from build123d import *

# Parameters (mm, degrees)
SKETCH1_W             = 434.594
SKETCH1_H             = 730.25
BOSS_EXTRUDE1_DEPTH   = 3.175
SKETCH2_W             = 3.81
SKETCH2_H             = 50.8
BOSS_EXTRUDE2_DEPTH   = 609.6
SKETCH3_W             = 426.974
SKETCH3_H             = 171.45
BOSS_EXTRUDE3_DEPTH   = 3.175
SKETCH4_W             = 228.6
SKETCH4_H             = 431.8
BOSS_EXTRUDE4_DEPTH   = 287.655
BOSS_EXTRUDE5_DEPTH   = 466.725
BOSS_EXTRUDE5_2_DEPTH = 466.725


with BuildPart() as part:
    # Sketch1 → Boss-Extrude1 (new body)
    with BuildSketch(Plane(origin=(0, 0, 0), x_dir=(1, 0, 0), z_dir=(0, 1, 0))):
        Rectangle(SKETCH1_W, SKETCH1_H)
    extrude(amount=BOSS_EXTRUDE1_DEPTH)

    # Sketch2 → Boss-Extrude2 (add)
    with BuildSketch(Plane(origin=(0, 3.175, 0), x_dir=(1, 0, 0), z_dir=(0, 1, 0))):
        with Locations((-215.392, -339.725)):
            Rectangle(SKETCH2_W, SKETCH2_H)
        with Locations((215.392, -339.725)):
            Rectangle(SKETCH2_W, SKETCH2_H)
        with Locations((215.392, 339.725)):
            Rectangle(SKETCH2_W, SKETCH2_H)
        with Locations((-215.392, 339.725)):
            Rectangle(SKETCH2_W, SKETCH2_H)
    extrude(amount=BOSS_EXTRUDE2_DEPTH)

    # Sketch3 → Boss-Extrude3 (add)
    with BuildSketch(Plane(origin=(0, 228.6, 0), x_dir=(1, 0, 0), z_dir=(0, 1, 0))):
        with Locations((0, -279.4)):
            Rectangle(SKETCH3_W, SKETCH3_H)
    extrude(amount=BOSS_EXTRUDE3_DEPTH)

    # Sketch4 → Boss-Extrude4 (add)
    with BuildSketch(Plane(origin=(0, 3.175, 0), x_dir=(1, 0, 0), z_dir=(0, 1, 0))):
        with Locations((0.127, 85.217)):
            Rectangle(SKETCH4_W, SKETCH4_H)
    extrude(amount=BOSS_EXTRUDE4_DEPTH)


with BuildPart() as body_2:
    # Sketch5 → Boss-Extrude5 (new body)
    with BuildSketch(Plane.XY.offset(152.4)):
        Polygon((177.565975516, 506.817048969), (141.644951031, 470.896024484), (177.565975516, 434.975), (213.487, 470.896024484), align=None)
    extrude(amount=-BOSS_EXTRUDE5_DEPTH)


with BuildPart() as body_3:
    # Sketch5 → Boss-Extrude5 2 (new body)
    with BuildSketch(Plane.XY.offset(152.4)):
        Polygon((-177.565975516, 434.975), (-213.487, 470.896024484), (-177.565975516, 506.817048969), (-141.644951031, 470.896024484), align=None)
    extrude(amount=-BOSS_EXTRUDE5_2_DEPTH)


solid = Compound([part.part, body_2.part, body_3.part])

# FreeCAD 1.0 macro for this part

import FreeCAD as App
import Part
import Sketcher
from FreeCAD import Vector
Q = App.Units.Quantity


def add_polygon(sketch, points):
    """Adds a closed chain of lines whose ends are joined by coincident constraints."""
    first, n = sketch.GeometryCount, len(points)
    for a, b in zip(points, points[1:] + points[:1]):
        sketch.addGeometry(Part.LineSegment(App.Vector(*a, 0), App.Vector(*b, 0)), False)
    for i in range(n):
        sketch.addConstraint(Sketcher.Constraint("Coincident", first + i, 2, first + (i + 1) % n, 1))

doc = App.newDocument("Part")
body = doc.addObject("PartDesign::Body", "Body")

# Sketch on XZ plane
sketch1 = body.newObject("Sketcher::SketchObject", "Sketch")
sketch1.AttachmentSupport = (doc.getObject("XZ_Plane"), [""])
sketch1.MapMode = "FlatFace"
add_polygon(sketch1, [(-217.297, -365.125), (-217.297, 365.125), (217.297, 365.125), (217.297, -365.125)])  # lines 0-3
sketch1.addConstraint(Sketcher.Constraint("Vertical", 0))
sketch1.addConstraint(Sketcher.Constraint("Horizontal", 1))
sketch1.addConstraint(Sketcher.Constraint("Vertical", 2))
sketch1.addConstraint(Sketcher.Constraint("Horizontal", 3))
sketch1.addConstraint(Sketcher.Constraint("Symmetric", 0, 2, 2, 2, -1, 1))
sketch1.addConstraint(Sketcher.Constraint("DistanceX", 1, 1, 1, 2, Q("17.11 in")))
sketch1.addConstraint(Sketcher.Constraint("DistanceY", 0, 1, 0, 2, Q("28.75 in")))
pad1 = body.newObject("PartDesign::Pad", "Pad")
pad1.Profile = sketch1
pad1.Length = Q("0.125 in")
pad1.Reversed = True

# Sketch on XZ plane
sketch2 = body.newObject("Sketcher::SketchObject", "Sketch001")
sketch2.AttachmentSupport = (doc.getObject("XZ_Plane"), [""])
sketch2.MapMode = "FlatFace"
sketch2.AttachmentOffset = App.Placement(Vector(0, 0, -0.125 * 25.4), App.Rotation())
add_polygon(sketch2, [(-217.297, 314.325), (-217.297, 365.125), (-213.487, 365.125), (-213.487, 314.325)])  # lines 0-3
add_polygon(sketch2, [(213.487, 314.325), (213.487, 365.125), (217.297, 365.125), (217.297, 314.325)])  # lines 4-7
add_polygon(sketch2, [(213.487, -365.125), (213.487, -314.325), (217.297, -314.325), (217.297, -365.125)])  # lines 8-11
add_polygon(sketch2, [(-217.297, -365.125), (-217.297, -314.325), (-213.487, -314.325), (-213.487, -365.125)])  # lines 12-15
sketch2.addConstraint(Sketcher.Constraint("Vertical", 0))
sketch2.addConstraint(Sketcher.Constraint("Horizontal", 1))
sketch2.addConstraint(Sketcher.Constraint("Vertical", 2))
sketch2.addConstraint(Sketcher.Constraint("Horizontal", 3))
sketch2.addConstraint(Sketcher.Constraint("Vertical", 4))
sketch2.addConstraint(Sketcher.Constraint("Horizontal", 5))
sketch2.addConstraint(Sketcher.Constraint("Vertical", 6))
sketch2.addConstraint(Sketcher.Constraint("Horizontal", 7))
sketch2.addConstraint(Sketcher.Constraint("Vertical", 8))
sketch2.addConstraint(Sketcher.Constraint("Horizontal", 9))
sketch2.addConstraint(Sketcher.Constraint("Vertical", 10))
sketch2.addConstraint(Sketcher.Constraint("Horizontal", 11))
sketch2.addConstraint(Sketcher.Constraint("Vertical", 12))
sketch2.addConstraint(Sketcher.Constraint("Horizontal", 13))
sketch2.addConstraint(Sketcher.Constraint("Vertical", 14))
sketch2.addConstraint(Sketcher.Constraint("Horizontal", 15))
sketch2.addConstraint(Sketcher.Constraint("Symmetric", 2, 2, 8, 2, -1, 1))
sketch2.addConstraint(Sketcher.Constraint("Symmetric", 0, 2, 10, 2, -1, 1))
sketch2.addConstraint(Sketcher.Constraint("Symmetric", 6, 2, 12, 2, -1, 1))
sketch2.addConstraint(Sketcher.Constraint("Symmetric", 4, 2, 14, 2, -1, 1))
sketch2.addConstraint(Sketcher.Constraint("Symmetric", 1, 2, 4, 2, -2))
sketch2.addConstraint(Sketcher.Constraint("Symmetric", 3, 2, 6, 2, -2))
sketch2.addConstraint(Sketcher.Constraint("DistanceY", 0, 1, 0, 2, Q("2 in")))
sketch2.addConstraint(Sketcher.Constraint("DistanceX", 1, 1, 1, 2, Q("0.15 in")))
sketch2.addConstraint(Sketcher.Constraint("DistanceX", 1, 2, 4, 2, Q("16.81 in")))
sketch2.addConstraint(Sketcher.Constraint("DistanceY", 8, 2, 7, 2, Q("24.75 in")))
pad2 = body.newObject("PartDesign::Pad", "Pad001")
pad2.Profile = sketch2
pad2.Length = Q("24 in")
pad2.Reversed = True

# Sketch on XZ plane
sketch3 = body.newObject("Sketcher::SketchObject", "Sketch002")
sketch3.AttachmentSupport = (doc.getObject("XZ_Plane"), [""])
sketch3.MapMode = "FlatFace"
sketch3.AttachmentOffset = App.Placement(Vector(0, 0, -9 * 25.4), App.Rotation())
add_polygon(sketch3, [(-213.487, 193.675), (-213.487, 365.125), (213.487, 365.125), (213.487, 193.675)])  # lines 0-3
sketch3.addConstraint(Sketcher.Constraint("Vertical", 0))
sketch3.addConstraint(Sketcher.Constraint("Horizontal", 1))
sketch3.addConstraint(Sketcher.Constraint("Vertical", 2))
sketch3.addConstraint(Sketcher.Constraint("Horizontal", 3))
sketch3.addConstraint(Sketcher.Constraint("DistanceX", 1, 1, 1, 2, Q("16.81 in")))
sketch3.addConstraint(Sketcher.Constraint("DistanceY", 0, 1, 0, 2, Q("6.75 in")))
sketch3.addConstraint(Sketcher.Constraint("DistanceX", 0, 2, -1, 1, Q("8.405 in")))
sketch3.addConstraint(Sketcher.Constraint("DistanceY", -1, 1, 0, 2, Q("14.375 in")))
pad3 = body.newObject("PartDesign::Pad", "Pad002")
pad3.Profile = sketch3
pad3.Length = Q("0.125 in")
pad3.Reversed = True

# Sketch on XZ plane
sketch4 = body.newObject("Sketcher::SketchObject", "Sketch003")
sketch4.AttachmentSupport = (doc.getObject("XZ_Plane"), [""])
sketch4.MapMode = "FlatFace"
sketch4.AttachmentOffset = App.Placement(Vector(0, 0, -0.125 * 25.4), App.Rotation())
add_polygon(sketch4, [(-114.173, -301.117), (-114.173, 130.683), (114.427, 130.683), (114.427, -301.117)])  # lines 0-3
sketch4.addConstraint(Sketcher.Constraint("Vertical", 0))
sketch4.addConstraint(Sketcher.Constraint("Horizontal", 1))
sketch4.addConstraint(Sketcher.Constraint("Vertical", 2))
sketch4.addConstraint(Sketcher.Constraint("Horizontal", 3))
sketch4.addConstraint(Sketcher.Constraint("DistanceX", 1, 1, 1, 2, Q("9 in")))
sketch4.addConstraint(Sketcher.Constraint("DistanceY", 0, 1, 0, 2, Q("17 in")))
sketch4.addConstraint(Sketcher.Constraint("DistanceX", 0, 2, -1, 1, Q("4.495 in")))
sketch4.addConstraint(Sketcher.Constraint("DistanceY", -1, 1, 0, 2, Q("5.145 in")))
pad4 = body.newObject("PartDesign::Pad", "Pad003")
pad4.Profile = sketch4
pad4.Length = Q("11.325 in")
pad4.Reversed = True
body2 = doc.addObject("PartDesign::Body", "Body001")

# Sketch on XY plane
sketch5 = body2.newObject("Sketcher::SketchObject", "Sketch004")
sketch5.AttachmentSupport = (doc.getObject("XY_Plane001"), [""])
sketch5.MapMode = "FlatFace"
sketch5.AttachmentOffset = App.Placement(Vector(0, 0, 6 * 25.4), App.Rotation())
add_polygon(sketch5, [(177.565976, 506.817049), (141.644951, 470.896024), (177.565976, 434.975), (213.487, 470.896024)])  # lines 0-3
sketch5.addConstraint(Sketcher.Constraint("Perpendicular", 0, 1))
sketch5.addConstraint(Sketcher.Constraint("Perpendicular", 1, 2))
sketch5.addConstraint(Sketcher.Constraint("Perpendicular", 2, 3))
sketch5.addConstraint(Sketcher.Constraint("Horizontal", 0, 2, 2, 2))
sketch5.addConstraint(Sketcher.Constraint("Vertical", 1, 2, 3, 2))
sketch5.addConstraint(Sketcher.Constraint("Distance", 0, Q("2 in")))
sketch5.addConstraint(Sketcher.Constraint("DistanceY", -1, 1, 1, 2, Q("17.125 in")))
sketch5.addConstraint(Sketcher.Constraint("DistanceX", -1, 1, 2, 2, Q("8.405 in")))
pad5 = body2.newObject("PartDesign::Pad", "Pad004")
pad5.Profile = sketch5
pad5.Length = Q("18.375 in")
pad5.Reversed = True
body3 = doc.addObject("PartDesign::Body", "Body002")

# Sketch on XY plane
sketch6 = body3.newObject("Sketcher::SketchObject", "Sketch005")
sketch6.AttachmentSupport = (doc.getObject("XY_Plane002"), [""])
sketch6.MapMode = "FlatFace"
sketch6.AttachmentOffset = App.Placement(Vector(0, 0, 6 * 25.4), App.Rotation())
add_polygon(sketch6, [(-213.487, 470.896024), (-177.565976, 434.975), (-141.644951, 470.896024), (-177.565976, 506.817049)])  # lines 0-3
sketch6.addConstraint(Sketcher.Constraint("Perpendicular", 0, 1))
sketch6.addConstraint(Sketcher.Constraint("Perpendicular", 1, 2))
sketch6.addConstraint(Sketcher.Constraint("Perpendicular", 2, 3))
sketch6.addConstraint(Sketcher.Constraint("Horizontal", 1, 2, 3, 2))
sketch6.addConstraint(Sketcher.Constraint("Vertical", 0, 2, 2, 2))
sketch6.addConstraint(Sketcher.Constraint("Distance", 0, Q("2 in")))
sketch6.addConstraint(Sketcher.Constraint("DistanceY", -1, 1, 0, 2, Q("17.125 in")))
sketch6.addConstraint(Sketcher.Constraint("DistanceX", 3, 2, -1, 1, Q("8.405 in")))
pad6 = body3.newObject("PartDesign::Pad", "Pad005")
pad6.Profile = sketch6
pad6.Length = Q("18.375 in")
pad6.Reversed = True

doc.recompute()
